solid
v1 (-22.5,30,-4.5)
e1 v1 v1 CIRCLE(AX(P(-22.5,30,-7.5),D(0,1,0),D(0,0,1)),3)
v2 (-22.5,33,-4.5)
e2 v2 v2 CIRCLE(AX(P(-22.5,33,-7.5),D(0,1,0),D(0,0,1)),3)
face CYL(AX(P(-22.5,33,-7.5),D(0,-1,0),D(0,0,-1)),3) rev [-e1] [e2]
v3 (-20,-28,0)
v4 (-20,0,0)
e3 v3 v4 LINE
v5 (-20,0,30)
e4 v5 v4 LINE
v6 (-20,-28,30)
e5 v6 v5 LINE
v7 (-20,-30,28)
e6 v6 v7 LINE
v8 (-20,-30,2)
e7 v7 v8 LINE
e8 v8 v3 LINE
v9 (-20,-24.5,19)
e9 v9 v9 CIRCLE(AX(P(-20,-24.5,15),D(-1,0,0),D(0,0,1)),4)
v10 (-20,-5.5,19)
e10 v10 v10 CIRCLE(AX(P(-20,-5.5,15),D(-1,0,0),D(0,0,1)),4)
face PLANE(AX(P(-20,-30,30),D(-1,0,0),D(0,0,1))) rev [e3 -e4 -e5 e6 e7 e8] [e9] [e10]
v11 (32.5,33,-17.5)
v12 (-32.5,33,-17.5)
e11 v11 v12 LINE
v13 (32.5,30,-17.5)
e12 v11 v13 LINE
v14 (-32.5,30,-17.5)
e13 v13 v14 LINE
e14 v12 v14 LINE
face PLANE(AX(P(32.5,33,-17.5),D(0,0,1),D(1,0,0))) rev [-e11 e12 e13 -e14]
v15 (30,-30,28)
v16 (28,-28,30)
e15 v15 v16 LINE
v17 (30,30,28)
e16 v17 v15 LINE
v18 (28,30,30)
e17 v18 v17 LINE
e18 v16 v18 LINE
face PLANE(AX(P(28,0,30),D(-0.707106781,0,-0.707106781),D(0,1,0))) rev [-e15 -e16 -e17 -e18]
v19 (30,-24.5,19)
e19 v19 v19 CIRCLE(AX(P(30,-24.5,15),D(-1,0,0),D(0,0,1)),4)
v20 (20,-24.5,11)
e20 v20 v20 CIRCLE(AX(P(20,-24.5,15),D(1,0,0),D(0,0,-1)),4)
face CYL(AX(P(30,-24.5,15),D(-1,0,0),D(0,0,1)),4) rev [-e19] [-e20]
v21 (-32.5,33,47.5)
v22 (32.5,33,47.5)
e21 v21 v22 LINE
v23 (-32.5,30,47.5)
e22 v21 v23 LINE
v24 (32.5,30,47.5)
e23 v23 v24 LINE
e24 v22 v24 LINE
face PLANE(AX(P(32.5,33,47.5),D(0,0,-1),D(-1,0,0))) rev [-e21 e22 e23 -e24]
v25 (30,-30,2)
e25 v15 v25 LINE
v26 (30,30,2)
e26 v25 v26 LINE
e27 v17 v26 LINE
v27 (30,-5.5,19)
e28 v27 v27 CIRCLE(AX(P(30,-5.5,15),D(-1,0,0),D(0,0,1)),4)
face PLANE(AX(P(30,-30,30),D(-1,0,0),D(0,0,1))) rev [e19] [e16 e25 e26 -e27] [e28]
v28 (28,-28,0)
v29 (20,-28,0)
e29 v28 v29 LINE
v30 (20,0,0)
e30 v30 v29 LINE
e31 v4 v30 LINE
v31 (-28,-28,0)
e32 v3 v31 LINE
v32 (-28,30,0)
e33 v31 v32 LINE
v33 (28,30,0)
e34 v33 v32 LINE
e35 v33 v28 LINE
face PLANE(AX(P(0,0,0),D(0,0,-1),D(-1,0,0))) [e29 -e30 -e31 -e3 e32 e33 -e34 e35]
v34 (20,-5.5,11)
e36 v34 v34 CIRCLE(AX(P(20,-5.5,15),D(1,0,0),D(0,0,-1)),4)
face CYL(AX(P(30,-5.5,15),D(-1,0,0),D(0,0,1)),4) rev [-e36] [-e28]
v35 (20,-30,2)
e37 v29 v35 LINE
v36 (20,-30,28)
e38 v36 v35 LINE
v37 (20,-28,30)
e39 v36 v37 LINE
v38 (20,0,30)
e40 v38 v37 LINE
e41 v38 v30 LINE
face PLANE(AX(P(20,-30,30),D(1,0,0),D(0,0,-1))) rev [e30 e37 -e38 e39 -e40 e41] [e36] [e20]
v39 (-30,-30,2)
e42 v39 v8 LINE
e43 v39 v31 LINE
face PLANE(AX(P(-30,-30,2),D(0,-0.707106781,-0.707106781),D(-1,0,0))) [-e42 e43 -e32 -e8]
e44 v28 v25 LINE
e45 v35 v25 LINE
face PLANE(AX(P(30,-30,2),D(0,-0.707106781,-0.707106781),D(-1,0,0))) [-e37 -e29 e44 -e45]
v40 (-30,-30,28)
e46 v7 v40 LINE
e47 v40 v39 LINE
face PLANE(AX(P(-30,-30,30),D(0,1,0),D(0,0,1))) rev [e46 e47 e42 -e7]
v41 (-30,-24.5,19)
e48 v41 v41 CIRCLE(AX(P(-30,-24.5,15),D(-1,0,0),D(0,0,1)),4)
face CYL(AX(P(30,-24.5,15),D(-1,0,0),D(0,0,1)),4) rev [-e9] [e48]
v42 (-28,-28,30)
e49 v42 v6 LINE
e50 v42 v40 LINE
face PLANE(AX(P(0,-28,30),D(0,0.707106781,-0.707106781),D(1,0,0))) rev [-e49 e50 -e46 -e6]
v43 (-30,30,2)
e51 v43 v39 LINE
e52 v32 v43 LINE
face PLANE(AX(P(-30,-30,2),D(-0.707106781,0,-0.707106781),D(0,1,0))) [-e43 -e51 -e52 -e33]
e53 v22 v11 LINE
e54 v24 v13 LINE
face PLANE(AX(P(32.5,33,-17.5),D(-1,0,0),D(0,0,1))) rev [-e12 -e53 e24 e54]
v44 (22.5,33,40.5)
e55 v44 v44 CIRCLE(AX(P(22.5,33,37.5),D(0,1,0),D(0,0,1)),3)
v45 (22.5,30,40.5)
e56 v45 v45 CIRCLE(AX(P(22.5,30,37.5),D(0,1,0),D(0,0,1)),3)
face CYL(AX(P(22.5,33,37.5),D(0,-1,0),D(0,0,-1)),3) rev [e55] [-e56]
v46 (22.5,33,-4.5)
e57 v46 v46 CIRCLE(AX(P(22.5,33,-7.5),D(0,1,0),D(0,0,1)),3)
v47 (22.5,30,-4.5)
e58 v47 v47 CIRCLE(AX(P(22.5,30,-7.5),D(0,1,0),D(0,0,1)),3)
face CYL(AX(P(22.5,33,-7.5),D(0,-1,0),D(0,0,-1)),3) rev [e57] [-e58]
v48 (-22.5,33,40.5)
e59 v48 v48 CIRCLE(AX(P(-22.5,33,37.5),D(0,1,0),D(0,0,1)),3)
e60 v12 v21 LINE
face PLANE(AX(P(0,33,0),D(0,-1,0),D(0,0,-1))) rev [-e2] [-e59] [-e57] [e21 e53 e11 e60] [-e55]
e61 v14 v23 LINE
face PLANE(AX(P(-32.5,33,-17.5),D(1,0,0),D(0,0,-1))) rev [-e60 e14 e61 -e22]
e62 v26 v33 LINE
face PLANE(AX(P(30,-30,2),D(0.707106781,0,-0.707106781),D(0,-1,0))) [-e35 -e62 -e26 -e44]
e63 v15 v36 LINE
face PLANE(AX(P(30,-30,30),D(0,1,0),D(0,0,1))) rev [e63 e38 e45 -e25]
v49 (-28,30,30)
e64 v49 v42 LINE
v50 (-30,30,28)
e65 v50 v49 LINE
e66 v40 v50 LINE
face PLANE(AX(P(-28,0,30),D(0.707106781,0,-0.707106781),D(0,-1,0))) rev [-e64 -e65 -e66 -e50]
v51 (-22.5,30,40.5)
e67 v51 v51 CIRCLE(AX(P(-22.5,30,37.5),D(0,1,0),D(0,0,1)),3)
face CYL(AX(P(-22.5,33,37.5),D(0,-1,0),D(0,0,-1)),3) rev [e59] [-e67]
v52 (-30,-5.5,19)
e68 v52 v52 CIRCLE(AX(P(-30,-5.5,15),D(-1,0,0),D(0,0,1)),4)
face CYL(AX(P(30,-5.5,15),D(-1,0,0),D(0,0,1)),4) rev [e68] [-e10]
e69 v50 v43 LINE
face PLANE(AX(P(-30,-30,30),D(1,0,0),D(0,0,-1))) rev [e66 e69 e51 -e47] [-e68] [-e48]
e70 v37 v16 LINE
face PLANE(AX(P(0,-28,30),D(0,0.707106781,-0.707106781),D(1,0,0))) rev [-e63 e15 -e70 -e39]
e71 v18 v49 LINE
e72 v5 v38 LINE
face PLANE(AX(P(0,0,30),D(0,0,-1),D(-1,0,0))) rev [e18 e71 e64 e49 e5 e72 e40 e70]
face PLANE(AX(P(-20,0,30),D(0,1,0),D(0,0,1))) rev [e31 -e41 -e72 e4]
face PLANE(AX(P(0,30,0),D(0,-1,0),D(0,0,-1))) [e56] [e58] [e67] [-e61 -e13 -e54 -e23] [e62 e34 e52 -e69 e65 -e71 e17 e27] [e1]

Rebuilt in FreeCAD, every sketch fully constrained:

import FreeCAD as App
import Part
import Sketcher
from FreeCAD import Vector


def edges_at(feature, points):
    """Names of the edges that pass closest to the given points."""
    edges = feature.Shape.Edges
    near = lambda p: min(range(len(edges)), key=lambda i: edges[i].distToShape(Part.Vertex(*p))[0])
    return sorted({f"Edge{near(p) + 1}" for p in points})

doc = App.newDocument("Part")
body = doc.addObject("PartDesign::Body", "Body")

sketch1 = doc.addObject("Sketcher::SketchObject", "Sketch")
body.addObject(sketch1)
sketch1.AttachmentSupport = (doc.XY_Plane, [""])
sketch1.MapMode = "FlatFace"
sketch1.addGeometry([
    Part.LineSegment(Vector(-30, -30, 0), Vector(-20, -30, 0)),
    Part.LineSegment(Vector(-20, -30, 0), Vector(-20, 0, 0)),
    Part.LineSegment(Vector(-20, 0, 0), Vector(20, 0, 0)),
    Part.LineSegment(Vector(20, 0, 0), Vector(20, -30, 0)),
    Part.LineSegment(Vector(20, -30, 0), Vector(30, -30, 0)),
    Part.LineSegment(Vector(30, -30, 0), Vector(30, 30, 0)),
    Part.LineSegment(Vector(30, 30, 0), Vector(-30, 30, 0)),
    Part.LineSegment(Vector(-30, 30, 0), Vector(-30, -30, 0)),
], False)
sketch1.addConstraint([
    Sketcher.Constraint("Coincident", 0, 2, 1, 1),
    Sketcher.Constraint("Coincident", 1, 2, 2, 1),
    Sketcher.Constraint("Coincident", 2, 2, 3, 1),
    Sketcher.Constraint("Coincident", 3, 2, 4, 1),
    Sketcher.Constraint("Coincident", 4, 2, 5, 1),
    Sketcher.Constraint("Coincident", 5, 2, 6, 1),
    Sketcher.Constraint("Coincident", 6, 2, 7, 1),
    Sketcher.Constraint("Coincident", 7, 2, 0, 1),
    Sketcher.Constraint("Horizontal", 0),
    Sketcher.Constraint("Vertical", 1),
    Sketcher.Constraint("Horizontal", 2),
    Sketcher.Constraint("Vertical", 3),
    Sketcher.Constraint("Horizontal", 4),
    Sketcher.Constraint("Vertical", 5),
    Sketcher.Constraint("Horizontal", 6),
    Sketcher.Constraint("Vertical", 7),
    Sketcher.Constraint("Symmetric", 1, 2, 2, 2, -1, 1),
    Sketcher.Constraint("Symmetric", 4, 2, 6, 2, -1, 1),
    Sketcher.Constraint("Horizontal", 0, 2, 3, 2),
    Sketcher.Constraint("Equal", 6, 5),
    Sketcher.Constraint("DistanceX", 0, 1, 0, 2, 10.0),
    Sketcher.Constraint("DistanceX", 2, 1, 2, 2, 40.0),
])
pad1 = doc.addObject("PartDesign::Pad", "Pad")
body.addObject(pad1)
pad1.Profile = sketch1
pad1.Length = 30

sketch2 = doc.addObject("Sketcher::SketchObject", "Sketch001")
body.addObject(sketch2)
sketch2.AttachmentSupport = (doc.YZ_Plane, [""])
sketch2.MapMode = "FlatFace"
sketch2.AttachmentOffset = App.Placement(Vector(0, 0, -30), App.Rotation())
sketch2.addGeometry([
    Part.Circle(Vector(-5.5, 15, 0), Vector(0, 0, 1), 4),
    Part.Circle(Vector(-24.5, 15, 0), Vector(0, 0, 1), 4),
], False)
sketch2.addConstraint([
    Sketcher.Constraint("Equal", 0, 1),
    Sketcher.Constraint("Horizontal", 0, 3, 1, 3),
    Sketcher.Constraint("Diameter", 0, 8.0),
    Sketcher.Constraint("DistanceY", -1, 1, 0, 3, 15.0),
    Sketcher.Constraint("DistanceX", 1, 3, 0, 3, 19.0),
    Sketcher.Constraint("DistanceX", 0, 3, -1, 1, 5.5),
])
pocket1 = doc.addObject("PartDesign::Pocket", "Pocket")
body.addObject(pocket1)
pocket1.Profile = sketch2
pocket1.Type = "ThroughAll"
pocket1.Reversed = True

sketch3 = doc.addObject("Sketcher::SketchObject", "Sketch002")
body.addObject(sketch3)
sketch3.AttachmentSupport = (doc.XZ_Plane, [""])
sketch3.MapMode = "FlatFace"
sketch3.AttachmentOffset = App.Placement(Vector(0, 0, -30), App.Rotation())
sketch3.addGeometry([
    Part.LineSegment(Vector(-32.5, -17.5, 0), Vector(-32.5, 47.5, 0)),
    Part.LineSegment(Vector(-32.5, 47.5, 0), Vector(32.5, 47.5, 0)),
    Part.LineSegment(Vector(32.5, 47.5, 0), Vector(32.5, -17.5, 0)),
    Part.LineSegment(Vector(32.5, -17.5, 0), Vector(-32.5, -17.5, 0)),
    Part.Circle(Vector(-22.5, 37.5, 0), Vector(0, 0, 1), 3),
    Part.Circle(Vector(22.5, 37.5, 0), Vector(0, 0, 1), 3),
    Part.Circle(Vector(-22.5, -7.5, 0), Vector(0, 0, 1), 3),
    Part.Circle(Vector(22.5, -7.5, 0), Vector(0, 0, 1), 3),
], False)
sketch3.addConstraint([
    Sketcher.Constraint("Coincident", 0, 2, 1, 1),
    Sketcher.Constraint("Coincident", 1, 2, 2, 1),
    Sketcher.Constraint("Coincident", 2, 2, 3, 1),
    Sketcher.Constraint("Coincident", 3, 2, 0, 1),
    Sketcher.Constraint("Vertical", 0),
    Sketcher.Constraint("Horizontal", 1),
    Sketcher.Constraint("Vertical", 2),
    Sketcher.Constraint("Horizontal", 3),
    Sketcher.Constraint("Equal", 4, 5),
    Sketcher.Constraint("Equal", 5, 6),
    Sketcher.Constraint("Equal", 6, 7),
    Sketcher.Constraint("Symmetric", 4, 3, 5, 3, -2),
    Sketcher.Constraint("Symmetric", 6, 3, 7, 3, -2),
    Sketcher.Constraint("Vertical", 4, 3, 6, 3),
    Sketcher.Constraint("Equal", 3, 0),
    Sketcher.Constraint("Diameter", 4, 6.0),
    Sketcher.Constraint("DistanceX", 1, 1, 1, 2, 65.0),
    Sketcher.Constraint("DistanceX", 4, 3, 5, 3, 45.0),
    Sketcher.Constraint("DistanceY", 6, 3, 4, 3, 45.0),
    Sketcher.Constraint("DistanceX", 0, 2, 4, 3, 10.0),
    Sketcher.Constraint("DistanceY", 4, 3, 0, 2, 10.0),
    Sketcher.Constraint("DistanceY", -1, 1, 4, 3, 37.5),
])
pad2 = doc.addObject("PartDesign::Pad", "Pad001")
body.addObject(pad2)
pad2.Profile = sketch3
pad2.Length = 3
pad2.Reversed = True
doc.recompute()

chamfer = doc.addObject("PartDesign::Chamfer", "Chamfer")
body.addObject(chamfer)
chamfer.Base = (pad2, edges_at(pad2, [
    (-25, -30, 0),
    (-30, 0, 0),
    (25, -30, 30),
    (30, 0, 30),
    (-30, 0, 30),
    (-25, -30, 30),
    (30, 0, 0),
    (25, -30, 0),
]))
chamfer.Size = 2

doc.recompute()
